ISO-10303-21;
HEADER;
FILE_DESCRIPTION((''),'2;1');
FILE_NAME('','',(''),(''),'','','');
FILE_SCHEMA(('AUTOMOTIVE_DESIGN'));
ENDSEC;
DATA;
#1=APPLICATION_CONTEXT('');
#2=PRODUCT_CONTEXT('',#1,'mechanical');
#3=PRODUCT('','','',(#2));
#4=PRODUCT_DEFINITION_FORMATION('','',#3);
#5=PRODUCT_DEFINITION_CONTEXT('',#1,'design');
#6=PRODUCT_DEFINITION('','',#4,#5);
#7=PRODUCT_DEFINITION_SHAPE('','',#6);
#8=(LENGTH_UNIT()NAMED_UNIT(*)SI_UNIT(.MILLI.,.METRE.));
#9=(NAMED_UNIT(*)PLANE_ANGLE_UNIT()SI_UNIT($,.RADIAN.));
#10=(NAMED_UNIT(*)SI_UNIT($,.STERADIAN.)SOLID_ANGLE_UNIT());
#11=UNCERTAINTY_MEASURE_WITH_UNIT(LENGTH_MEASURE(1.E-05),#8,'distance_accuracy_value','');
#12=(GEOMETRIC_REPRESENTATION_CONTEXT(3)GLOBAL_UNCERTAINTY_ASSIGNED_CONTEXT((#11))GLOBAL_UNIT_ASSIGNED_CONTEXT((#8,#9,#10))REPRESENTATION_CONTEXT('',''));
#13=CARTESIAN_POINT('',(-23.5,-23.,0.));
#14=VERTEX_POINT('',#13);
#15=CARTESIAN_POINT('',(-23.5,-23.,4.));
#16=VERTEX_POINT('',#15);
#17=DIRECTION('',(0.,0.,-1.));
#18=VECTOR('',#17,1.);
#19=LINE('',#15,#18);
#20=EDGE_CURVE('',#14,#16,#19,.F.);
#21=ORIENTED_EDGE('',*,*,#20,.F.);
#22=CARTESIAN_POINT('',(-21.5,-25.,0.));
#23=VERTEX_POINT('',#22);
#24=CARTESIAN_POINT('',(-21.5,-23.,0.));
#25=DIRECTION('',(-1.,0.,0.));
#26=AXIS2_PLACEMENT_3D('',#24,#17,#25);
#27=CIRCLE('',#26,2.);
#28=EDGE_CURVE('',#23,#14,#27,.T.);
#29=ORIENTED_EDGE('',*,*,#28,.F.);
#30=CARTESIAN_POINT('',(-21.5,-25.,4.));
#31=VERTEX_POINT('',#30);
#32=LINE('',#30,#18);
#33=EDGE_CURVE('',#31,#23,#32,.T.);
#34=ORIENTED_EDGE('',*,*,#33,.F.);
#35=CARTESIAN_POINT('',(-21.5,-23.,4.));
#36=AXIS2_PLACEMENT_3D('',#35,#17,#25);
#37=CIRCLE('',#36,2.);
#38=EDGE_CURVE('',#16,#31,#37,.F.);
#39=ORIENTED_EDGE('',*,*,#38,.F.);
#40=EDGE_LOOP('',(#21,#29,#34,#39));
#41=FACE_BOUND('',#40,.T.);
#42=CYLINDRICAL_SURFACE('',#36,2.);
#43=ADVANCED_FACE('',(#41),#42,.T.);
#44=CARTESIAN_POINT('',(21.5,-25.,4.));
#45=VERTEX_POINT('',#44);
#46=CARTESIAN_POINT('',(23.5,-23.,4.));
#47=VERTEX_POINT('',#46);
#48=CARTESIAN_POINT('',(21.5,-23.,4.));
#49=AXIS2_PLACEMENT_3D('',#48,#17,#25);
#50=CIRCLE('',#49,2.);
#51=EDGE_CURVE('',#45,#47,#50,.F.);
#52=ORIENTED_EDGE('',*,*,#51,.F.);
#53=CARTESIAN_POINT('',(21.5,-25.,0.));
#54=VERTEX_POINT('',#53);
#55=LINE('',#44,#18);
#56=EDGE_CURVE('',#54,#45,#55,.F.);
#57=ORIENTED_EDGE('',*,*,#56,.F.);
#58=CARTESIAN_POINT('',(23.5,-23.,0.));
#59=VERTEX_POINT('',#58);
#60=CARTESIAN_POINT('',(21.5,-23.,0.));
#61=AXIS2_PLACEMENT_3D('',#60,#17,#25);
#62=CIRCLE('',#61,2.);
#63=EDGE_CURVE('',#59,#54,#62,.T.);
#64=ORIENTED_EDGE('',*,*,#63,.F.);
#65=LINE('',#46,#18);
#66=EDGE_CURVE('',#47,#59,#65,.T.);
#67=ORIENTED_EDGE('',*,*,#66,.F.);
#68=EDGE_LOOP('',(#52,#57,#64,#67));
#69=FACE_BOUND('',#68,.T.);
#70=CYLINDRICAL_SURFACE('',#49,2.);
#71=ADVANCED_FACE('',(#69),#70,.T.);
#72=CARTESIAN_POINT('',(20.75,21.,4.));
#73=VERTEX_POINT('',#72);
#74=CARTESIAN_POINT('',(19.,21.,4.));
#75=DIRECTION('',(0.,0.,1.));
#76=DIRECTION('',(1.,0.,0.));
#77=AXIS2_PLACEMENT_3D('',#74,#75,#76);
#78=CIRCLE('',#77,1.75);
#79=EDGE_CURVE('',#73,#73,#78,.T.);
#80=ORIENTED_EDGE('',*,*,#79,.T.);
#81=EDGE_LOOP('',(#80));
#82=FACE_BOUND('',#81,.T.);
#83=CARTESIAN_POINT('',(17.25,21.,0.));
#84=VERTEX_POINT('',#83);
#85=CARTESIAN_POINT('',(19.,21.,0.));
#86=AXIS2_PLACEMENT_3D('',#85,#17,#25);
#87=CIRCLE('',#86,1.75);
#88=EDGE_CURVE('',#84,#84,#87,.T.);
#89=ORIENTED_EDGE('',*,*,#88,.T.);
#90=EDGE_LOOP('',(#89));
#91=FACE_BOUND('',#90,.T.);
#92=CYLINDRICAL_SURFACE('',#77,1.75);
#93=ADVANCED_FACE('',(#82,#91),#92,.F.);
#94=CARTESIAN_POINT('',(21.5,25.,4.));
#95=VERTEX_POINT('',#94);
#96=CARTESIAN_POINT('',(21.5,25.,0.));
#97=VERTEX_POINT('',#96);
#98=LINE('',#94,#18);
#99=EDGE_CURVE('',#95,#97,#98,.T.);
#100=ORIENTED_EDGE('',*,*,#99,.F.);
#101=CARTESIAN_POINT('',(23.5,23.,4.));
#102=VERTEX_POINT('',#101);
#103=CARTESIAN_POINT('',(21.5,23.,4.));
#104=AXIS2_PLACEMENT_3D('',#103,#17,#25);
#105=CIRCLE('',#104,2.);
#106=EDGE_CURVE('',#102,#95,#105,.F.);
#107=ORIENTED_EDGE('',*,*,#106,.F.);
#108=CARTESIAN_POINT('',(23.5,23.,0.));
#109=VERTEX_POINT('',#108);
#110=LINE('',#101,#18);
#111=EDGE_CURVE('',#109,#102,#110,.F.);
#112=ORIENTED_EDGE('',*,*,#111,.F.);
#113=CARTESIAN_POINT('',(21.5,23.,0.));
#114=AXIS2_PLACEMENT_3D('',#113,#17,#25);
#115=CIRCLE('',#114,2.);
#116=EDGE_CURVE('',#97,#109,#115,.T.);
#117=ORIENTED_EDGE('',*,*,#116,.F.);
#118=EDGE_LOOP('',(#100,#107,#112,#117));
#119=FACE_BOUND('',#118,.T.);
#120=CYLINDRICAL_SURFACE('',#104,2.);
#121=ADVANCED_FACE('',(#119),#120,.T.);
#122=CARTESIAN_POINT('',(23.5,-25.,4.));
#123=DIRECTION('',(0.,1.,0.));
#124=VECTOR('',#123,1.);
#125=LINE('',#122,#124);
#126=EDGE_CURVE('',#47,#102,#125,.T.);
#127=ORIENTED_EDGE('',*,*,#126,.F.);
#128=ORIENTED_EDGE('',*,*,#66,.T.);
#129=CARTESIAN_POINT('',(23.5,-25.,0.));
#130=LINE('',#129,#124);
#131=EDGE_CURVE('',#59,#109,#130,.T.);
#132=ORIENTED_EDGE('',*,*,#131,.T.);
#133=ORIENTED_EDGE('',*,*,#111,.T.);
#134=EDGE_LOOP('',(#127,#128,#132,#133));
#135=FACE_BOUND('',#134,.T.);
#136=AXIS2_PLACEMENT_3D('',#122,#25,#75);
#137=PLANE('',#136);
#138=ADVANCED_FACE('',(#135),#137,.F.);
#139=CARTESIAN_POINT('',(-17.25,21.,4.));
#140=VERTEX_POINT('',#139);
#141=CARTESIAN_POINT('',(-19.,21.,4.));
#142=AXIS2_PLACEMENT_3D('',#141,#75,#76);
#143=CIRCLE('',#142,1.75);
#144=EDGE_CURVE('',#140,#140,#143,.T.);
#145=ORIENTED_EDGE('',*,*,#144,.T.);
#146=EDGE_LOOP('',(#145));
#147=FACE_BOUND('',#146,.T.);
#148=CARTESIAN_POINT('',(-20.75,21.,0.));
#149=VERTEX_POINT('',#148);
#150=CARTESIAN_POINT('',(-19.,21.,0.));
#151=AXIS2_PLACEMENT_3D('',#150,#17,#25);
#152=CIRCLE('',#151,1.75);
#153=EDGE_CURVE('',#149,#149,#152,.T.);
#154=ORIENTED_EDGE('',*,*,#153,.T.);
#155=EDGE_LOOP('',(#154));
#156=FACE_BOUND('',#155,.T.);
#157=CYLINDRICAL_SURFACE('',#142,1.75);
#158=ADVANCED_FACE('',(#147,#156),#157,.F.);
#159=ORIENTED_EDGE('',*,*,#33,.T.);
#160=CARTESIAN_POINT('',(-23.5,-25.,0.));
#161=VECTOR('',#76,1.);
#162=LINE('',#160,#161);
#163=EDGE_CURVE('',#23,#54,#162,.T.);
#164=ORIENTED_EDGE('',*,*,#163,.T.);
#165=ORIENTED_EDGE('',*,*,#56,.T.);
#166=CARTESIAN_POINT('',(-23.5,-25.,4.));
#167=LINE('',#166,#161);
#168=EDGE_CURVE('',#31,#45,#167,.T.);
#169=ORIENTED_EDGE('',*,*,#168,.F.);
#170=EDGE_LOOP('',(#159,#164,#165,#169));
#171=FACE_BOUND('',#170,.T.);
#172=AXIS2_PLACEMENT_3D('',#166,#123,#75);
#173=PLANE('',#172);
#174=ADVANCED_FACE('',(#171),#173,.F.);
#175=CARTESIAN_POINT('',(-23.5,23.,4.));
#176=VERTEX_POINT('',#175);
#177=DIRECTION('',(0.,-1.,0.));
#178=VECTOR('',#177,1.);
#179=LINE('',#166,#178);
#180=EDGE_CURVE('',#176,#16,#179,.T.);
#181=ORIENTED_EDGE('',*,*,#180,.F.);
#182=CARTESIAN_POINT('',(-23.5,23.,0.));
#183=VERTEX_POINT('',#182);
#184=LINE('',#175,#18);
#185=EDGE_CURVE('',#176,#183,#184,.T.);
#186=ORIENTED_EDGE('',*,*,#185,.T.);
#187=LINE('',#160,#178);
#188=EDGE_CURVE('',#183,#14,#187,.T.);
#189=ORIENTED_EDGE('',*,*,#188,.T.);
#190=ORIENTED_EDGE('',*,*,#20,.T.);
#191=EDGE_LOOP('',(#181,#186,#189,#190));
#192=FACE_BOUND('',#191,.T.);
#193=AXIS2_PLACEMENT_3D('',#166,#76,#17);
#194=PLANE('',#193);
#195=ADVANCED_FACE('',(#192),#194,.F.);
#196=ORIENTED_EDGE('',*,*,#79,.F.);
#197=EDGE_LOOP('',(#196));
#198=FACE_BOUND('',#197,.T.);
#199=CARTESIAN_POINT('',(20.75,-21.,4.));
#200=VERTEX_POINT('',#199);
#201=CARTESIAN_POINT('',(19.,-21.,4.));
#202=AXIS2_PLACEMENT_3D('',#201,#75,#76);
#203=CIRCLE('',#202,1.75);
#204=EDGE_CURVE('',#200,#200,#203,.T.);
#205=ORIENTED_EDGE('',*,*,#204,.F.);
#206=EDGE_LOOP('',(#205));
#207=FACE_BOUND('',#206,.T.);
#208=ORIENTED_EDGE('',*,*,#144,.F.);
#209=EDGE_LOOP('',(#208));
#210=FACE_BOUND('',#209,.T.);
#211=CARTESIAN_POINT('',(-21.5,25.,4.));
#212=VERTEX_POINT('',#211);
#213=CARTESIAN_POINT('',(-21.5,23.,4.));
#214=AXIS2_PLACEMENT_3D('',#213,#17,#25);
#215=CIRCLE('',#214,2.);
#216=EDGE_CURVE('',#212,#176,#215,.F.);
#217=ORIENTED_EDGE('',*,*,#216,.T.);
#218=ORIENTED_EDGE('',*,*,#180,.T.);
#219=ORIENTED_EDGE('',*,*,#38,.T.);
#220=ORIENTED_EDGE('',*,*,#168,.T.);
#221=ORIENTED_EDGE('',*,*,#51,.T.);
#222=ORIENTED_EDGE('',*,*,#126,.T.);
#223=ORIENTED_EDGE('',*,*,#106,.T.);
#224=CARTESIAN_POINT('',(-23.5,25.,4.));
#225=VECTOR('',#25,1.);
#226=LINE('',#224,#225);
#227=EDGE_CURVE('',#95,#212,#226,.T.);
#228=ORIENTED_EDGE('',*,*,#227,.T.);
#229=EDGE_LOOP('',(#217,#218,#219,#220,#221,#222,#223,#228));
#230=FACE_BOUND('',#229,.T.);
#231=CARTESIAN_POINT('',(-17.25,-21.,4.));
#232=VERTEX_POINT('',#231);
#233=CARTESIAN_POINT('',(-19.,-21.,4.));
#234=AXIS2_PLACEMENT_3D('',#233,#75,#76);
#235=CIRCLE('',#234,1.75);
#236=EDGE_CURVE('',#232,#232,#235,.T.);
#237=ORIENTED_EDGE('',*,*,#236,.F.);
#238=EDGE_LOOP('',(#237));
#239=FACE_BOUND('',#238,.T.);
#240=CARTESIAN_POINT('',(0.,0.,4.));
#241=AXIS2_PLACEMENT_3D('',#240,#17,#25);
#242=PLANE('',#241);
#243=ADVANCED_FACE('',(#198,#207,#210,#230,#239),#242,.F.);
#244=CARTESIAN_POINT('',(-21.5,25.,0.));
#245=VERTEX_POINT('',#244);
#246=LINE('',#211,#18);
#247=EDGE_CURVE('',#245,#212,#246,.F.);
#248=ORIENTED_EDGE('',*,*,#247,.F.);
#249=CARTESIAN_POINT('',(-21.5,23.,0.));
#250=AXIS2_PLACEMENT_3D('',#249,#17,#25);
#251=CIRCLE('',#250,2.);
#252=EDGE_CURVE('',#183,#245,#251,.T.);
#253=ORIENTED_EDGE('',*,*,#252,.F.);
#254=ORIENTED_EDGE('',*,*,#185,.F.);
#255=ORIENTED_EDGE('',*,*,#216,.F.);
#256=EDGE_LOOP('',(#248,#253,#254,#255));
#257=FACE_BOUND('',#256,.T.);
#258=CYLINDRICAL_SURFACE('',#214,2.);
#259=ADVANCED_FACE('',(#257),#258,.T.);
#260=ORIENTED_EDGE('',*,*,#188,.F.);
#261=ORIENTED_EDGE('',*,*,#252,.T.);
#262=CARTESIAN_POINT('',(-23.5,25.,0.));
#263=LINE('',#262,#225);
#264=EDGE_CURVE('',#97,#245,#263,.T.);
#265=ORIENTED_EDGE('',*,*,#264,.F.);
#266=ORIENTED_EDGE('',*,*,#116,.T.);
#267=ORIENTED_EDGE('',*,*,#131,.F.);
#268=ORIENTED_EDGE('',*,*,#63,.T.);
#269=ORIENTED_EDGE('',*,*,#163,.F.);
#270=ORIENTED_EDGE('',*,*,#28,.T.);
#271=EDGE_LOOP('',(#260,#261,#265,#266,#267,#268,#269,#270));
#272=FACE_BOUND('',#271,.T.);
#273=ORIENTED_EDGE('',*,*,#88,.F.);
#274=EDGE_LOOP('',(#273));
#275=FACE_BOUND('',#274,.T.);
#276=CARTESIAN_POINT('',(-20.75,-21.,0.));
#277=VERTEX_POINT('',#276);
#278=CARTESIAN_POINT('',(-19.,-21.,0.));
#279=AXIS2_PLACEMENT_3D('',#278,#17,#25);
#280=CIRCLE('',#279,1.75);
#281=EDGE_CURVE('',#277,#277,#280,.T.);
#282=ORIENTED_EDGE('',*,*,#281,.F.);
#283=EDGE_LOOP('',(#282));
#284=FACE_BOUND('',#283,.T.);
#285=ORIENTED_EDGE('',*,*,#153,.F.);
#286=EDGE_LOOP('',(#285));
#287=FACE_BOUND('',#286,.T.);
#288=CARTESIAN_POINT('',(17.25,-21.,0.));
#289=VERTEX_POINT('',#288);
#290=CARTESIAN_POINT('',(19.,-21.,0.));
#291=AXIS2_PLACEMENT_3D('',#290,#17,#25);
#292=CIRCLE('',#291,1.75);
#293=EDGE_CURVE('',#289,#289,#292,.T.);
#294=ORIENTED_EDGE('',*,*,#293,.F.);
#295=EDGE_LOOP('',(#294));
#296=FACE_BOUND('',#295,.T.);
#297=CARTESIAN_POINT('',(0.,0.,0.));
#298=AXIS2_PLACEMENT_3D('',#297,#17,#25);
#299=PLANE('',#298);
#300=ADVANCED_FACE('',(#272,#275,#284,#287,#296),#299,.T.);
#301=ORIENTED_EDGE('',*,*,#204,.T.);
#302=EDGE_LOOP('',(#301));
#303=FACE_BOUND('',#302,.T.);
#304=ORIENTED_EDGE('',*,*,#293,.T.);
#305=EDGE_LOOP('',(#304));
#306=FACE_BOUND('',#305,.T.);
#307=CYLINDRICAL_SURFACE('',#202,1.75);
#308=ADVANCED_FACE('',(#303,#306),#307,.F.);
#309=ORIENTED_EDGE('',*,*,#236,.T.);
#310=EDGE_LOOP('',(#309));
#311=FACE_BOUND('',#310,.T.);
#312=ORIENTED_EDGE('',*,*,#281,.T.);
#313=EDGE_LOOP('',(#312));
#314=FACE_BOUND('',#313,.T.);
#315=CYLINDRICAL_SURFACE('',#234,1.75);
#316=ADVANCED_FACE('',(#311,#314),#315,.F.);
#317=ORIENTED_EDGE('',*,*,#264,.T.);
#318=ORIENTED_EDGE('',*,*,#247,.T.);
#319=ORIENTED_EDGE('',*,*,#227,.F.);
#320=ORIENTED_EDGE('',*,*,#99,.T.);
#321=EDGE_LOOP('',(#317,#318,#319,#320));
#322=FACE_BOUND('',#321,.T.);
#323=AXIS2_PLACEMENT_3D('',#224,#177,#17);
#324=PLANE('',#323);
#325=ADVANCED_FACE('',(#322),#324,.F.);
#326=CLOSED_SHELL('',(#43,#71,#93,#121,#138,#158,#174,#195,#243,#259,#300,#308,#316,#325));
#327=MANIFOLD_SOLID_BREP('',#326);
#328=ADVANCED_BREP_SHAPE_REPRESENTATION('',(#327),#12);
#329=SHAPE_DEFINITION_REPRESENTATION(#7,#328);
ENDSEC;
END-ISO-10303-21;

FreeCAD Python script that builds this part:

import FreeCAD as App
import Part
import Sketcher
from FreeCAD import Vector


def edges_at(feature, points):
    """Names of the edges that pass closest to the given points."""
    edges = feature.Shape.Edges
    near = lambda p: min(range(len(edges)), key=lambda i: edges[i].distToShape(Part.Vertex(*p))[0])
    return sorted({f"Edge{near(p) + 1}" for p in points})

doc = App.newDocument("Part")
params = doc.addObject("Spreadsheet::Sheet", "Params")
for row, (alias, value) in enumerate([
    ("sketch1_width", "47 mm"),
    ("sketch1_height", "50 mm"),
    ("pad1_length", "4 mm"),
    ("sketch2_diameter", "3.5 mm"),
    ("hole_diameter", "3.5 mm"),
    ("hole_depth", "4 mm"),
    ("fillet_radius", "2 mm"),
], start=1):
    params.set(f"A{row}", alias)
    params.set(f"B{row}", "=" + value)
    params.setAlias(f"B{row}", alias)

body = doc.addObject("PartDesign::Body", "Body")

# Sketch on XY plane
sketch1 = body.newObject("Sketcher::SketchObject", "Sketch")
sketch1.AttachmentSupport = (doc.getObject("XY_Plane"), [""])
sketch1.MapMode = "FlatFace"
sketch1.addGeometry(Part.LineSegment(Vector(-24, 25, 0), Vector(-24, -25, 0)), False)
sketch1.addGeometry(Part.LineSegment(Vector(-24, -25, 0), Vector(24, -25, 0)), False)
sketch1.addGeometry(Part.LineSegment(Vector(24, -25, 0), Vector(24, 25, 0)), False)
sketch1.addGeometry(Part.LineSegment(Vector(24, 25, 0), Vector(-24, 25, 0)), False)
sketch1.addConstraint(Sketcher.Constraint("Coincident", 0, 2, 1, 1))
sketch1.addConstraint(Sketcher.Constraint("Coincident", 1, 2, 2, 1))
sketch1.addConstraint(Sketcher.Constraint("Coincident", 2, 2, 3, 1))
sketch1.addConstraint(Sketcher.Constraint("Coincident", 3, 2, 0, 1))
sketch1.addConstraint(Sketcher.Constraint("Vertical", 0))
sketch1.addConstraint(Sketcher.Constraint("Horizontal", 1))
sketch1.addConstraint(Sketcher.Constraint("Vertical", 2))
sketch1.addConstraint(Sketcher.Constraint("Horizontal", 3))
sketch1.addConstraint(Sketcher.Constraint("Symmetric", 0, 2, 2, 2, -1, 1))
sketch1.addConstraint(Sketcher.Constraint("DistanceX", 1, 1, 1, 2, 47.0))
sketch1.addConstraint(Sketcher.Constraint("DistanceY", 0, 2, 0, 1, 50.0))
sketch1.setExpression("Constraints[9]", "Params.sketch1_width")
sketch1.setExpression("Constraints[10]", "Params.sketch1_height")
pad1 = body.newObject("PartDesign::Pad", "Pad")
pad1.Profile = sketch1
pad1.setExpression("Length", "Params.pad1_length")

# Sketch on XY plane
sketch2 = body.newObject("Sketcher::SketchObject", "Sketch001")
sketch2.AttachmentSupport = (doc.getObject("XY_Plane"), [""])
sketch2.MapMode = "FlatFace"
sketch2.AttachmentOffset = App.Placement(Vector(0, 0, 4), App.Rotation())
sketch2.addGeometry(Part.Circle(Vector(-19, 21, 0), Vector(0, 0, 1), 1.8), False)
sketch2.addGeometry(Part.Circle(Vector(19, 21, 0), Vector(0, 0, 1), 1.8), False)
sketch2.addGeometry(Part.Circle(Vector(-19, -21, 0), Vector(0, 0, 1), 1.8), False)
sketch2.addGeometry(Part.Circle(Vector(19, -21, 0), Vector(0, 0, 1), 1.8), False)
sketch2.addConstraint(Sketcher.Constraint("Equal", 0, 1))
sketch2.addConstraint(Sketcher.Constraint("Equal", 1, 2))
sketch2.addConstraint(Sketcher.Constraint("Equal", 2, 3))
sketch2.addConstraint(Sketcher.Constraint("Symmetric", 1, 3, 2, 3, -1, 1))
sketch2.addConstraint(Sketcher.Constraint("Symmetric", 0, 3, 3, 3, -1, 1))
sketch2.addConstraint(Sketcher.Constraint("Symmetric", 0, 3, 1, 3, -2))
sketch2.addConstraint(Sketcher.Constraint("Diameter", 0, 3.5))
sketch2.addConstraint(Sketcher.Constraint("DistanceX", 0, 3, -1, 1, 19.0))
sketch2.addConstraint(Sketcher.Constraint("DistanceY", -1, 1, 0, 3, 21.0))
sketch2.setExpression("Constraints[6]", "Params.sketch2_diameter")
doc.recompute()
hole = body.newObject("PartDesign::Hole", "Hole")
hole.Profile = sketch2
hole.ThreadType = "None"
hole.setExpression("Diameter", "Params.hole_diameter")
hole.DepthType = "Dimension"
hole.setExpression("Depth", "Params.hole_depth")
hole.DrillPoint = "Flat"
doc.recompute()

fillet = body.newObject("PartDesign::Fillet", "Fillet")
fillet.Base = (hole, edges_at(hole, [
    (23.5, -25, 2),
    (-23.5, -25, 2),
    (-23.5, 25, 2),
    (23.5, 25, 2),
]))
fillet.setExpression("Radius", "Params.fillet_radius")

doc.recompute()
